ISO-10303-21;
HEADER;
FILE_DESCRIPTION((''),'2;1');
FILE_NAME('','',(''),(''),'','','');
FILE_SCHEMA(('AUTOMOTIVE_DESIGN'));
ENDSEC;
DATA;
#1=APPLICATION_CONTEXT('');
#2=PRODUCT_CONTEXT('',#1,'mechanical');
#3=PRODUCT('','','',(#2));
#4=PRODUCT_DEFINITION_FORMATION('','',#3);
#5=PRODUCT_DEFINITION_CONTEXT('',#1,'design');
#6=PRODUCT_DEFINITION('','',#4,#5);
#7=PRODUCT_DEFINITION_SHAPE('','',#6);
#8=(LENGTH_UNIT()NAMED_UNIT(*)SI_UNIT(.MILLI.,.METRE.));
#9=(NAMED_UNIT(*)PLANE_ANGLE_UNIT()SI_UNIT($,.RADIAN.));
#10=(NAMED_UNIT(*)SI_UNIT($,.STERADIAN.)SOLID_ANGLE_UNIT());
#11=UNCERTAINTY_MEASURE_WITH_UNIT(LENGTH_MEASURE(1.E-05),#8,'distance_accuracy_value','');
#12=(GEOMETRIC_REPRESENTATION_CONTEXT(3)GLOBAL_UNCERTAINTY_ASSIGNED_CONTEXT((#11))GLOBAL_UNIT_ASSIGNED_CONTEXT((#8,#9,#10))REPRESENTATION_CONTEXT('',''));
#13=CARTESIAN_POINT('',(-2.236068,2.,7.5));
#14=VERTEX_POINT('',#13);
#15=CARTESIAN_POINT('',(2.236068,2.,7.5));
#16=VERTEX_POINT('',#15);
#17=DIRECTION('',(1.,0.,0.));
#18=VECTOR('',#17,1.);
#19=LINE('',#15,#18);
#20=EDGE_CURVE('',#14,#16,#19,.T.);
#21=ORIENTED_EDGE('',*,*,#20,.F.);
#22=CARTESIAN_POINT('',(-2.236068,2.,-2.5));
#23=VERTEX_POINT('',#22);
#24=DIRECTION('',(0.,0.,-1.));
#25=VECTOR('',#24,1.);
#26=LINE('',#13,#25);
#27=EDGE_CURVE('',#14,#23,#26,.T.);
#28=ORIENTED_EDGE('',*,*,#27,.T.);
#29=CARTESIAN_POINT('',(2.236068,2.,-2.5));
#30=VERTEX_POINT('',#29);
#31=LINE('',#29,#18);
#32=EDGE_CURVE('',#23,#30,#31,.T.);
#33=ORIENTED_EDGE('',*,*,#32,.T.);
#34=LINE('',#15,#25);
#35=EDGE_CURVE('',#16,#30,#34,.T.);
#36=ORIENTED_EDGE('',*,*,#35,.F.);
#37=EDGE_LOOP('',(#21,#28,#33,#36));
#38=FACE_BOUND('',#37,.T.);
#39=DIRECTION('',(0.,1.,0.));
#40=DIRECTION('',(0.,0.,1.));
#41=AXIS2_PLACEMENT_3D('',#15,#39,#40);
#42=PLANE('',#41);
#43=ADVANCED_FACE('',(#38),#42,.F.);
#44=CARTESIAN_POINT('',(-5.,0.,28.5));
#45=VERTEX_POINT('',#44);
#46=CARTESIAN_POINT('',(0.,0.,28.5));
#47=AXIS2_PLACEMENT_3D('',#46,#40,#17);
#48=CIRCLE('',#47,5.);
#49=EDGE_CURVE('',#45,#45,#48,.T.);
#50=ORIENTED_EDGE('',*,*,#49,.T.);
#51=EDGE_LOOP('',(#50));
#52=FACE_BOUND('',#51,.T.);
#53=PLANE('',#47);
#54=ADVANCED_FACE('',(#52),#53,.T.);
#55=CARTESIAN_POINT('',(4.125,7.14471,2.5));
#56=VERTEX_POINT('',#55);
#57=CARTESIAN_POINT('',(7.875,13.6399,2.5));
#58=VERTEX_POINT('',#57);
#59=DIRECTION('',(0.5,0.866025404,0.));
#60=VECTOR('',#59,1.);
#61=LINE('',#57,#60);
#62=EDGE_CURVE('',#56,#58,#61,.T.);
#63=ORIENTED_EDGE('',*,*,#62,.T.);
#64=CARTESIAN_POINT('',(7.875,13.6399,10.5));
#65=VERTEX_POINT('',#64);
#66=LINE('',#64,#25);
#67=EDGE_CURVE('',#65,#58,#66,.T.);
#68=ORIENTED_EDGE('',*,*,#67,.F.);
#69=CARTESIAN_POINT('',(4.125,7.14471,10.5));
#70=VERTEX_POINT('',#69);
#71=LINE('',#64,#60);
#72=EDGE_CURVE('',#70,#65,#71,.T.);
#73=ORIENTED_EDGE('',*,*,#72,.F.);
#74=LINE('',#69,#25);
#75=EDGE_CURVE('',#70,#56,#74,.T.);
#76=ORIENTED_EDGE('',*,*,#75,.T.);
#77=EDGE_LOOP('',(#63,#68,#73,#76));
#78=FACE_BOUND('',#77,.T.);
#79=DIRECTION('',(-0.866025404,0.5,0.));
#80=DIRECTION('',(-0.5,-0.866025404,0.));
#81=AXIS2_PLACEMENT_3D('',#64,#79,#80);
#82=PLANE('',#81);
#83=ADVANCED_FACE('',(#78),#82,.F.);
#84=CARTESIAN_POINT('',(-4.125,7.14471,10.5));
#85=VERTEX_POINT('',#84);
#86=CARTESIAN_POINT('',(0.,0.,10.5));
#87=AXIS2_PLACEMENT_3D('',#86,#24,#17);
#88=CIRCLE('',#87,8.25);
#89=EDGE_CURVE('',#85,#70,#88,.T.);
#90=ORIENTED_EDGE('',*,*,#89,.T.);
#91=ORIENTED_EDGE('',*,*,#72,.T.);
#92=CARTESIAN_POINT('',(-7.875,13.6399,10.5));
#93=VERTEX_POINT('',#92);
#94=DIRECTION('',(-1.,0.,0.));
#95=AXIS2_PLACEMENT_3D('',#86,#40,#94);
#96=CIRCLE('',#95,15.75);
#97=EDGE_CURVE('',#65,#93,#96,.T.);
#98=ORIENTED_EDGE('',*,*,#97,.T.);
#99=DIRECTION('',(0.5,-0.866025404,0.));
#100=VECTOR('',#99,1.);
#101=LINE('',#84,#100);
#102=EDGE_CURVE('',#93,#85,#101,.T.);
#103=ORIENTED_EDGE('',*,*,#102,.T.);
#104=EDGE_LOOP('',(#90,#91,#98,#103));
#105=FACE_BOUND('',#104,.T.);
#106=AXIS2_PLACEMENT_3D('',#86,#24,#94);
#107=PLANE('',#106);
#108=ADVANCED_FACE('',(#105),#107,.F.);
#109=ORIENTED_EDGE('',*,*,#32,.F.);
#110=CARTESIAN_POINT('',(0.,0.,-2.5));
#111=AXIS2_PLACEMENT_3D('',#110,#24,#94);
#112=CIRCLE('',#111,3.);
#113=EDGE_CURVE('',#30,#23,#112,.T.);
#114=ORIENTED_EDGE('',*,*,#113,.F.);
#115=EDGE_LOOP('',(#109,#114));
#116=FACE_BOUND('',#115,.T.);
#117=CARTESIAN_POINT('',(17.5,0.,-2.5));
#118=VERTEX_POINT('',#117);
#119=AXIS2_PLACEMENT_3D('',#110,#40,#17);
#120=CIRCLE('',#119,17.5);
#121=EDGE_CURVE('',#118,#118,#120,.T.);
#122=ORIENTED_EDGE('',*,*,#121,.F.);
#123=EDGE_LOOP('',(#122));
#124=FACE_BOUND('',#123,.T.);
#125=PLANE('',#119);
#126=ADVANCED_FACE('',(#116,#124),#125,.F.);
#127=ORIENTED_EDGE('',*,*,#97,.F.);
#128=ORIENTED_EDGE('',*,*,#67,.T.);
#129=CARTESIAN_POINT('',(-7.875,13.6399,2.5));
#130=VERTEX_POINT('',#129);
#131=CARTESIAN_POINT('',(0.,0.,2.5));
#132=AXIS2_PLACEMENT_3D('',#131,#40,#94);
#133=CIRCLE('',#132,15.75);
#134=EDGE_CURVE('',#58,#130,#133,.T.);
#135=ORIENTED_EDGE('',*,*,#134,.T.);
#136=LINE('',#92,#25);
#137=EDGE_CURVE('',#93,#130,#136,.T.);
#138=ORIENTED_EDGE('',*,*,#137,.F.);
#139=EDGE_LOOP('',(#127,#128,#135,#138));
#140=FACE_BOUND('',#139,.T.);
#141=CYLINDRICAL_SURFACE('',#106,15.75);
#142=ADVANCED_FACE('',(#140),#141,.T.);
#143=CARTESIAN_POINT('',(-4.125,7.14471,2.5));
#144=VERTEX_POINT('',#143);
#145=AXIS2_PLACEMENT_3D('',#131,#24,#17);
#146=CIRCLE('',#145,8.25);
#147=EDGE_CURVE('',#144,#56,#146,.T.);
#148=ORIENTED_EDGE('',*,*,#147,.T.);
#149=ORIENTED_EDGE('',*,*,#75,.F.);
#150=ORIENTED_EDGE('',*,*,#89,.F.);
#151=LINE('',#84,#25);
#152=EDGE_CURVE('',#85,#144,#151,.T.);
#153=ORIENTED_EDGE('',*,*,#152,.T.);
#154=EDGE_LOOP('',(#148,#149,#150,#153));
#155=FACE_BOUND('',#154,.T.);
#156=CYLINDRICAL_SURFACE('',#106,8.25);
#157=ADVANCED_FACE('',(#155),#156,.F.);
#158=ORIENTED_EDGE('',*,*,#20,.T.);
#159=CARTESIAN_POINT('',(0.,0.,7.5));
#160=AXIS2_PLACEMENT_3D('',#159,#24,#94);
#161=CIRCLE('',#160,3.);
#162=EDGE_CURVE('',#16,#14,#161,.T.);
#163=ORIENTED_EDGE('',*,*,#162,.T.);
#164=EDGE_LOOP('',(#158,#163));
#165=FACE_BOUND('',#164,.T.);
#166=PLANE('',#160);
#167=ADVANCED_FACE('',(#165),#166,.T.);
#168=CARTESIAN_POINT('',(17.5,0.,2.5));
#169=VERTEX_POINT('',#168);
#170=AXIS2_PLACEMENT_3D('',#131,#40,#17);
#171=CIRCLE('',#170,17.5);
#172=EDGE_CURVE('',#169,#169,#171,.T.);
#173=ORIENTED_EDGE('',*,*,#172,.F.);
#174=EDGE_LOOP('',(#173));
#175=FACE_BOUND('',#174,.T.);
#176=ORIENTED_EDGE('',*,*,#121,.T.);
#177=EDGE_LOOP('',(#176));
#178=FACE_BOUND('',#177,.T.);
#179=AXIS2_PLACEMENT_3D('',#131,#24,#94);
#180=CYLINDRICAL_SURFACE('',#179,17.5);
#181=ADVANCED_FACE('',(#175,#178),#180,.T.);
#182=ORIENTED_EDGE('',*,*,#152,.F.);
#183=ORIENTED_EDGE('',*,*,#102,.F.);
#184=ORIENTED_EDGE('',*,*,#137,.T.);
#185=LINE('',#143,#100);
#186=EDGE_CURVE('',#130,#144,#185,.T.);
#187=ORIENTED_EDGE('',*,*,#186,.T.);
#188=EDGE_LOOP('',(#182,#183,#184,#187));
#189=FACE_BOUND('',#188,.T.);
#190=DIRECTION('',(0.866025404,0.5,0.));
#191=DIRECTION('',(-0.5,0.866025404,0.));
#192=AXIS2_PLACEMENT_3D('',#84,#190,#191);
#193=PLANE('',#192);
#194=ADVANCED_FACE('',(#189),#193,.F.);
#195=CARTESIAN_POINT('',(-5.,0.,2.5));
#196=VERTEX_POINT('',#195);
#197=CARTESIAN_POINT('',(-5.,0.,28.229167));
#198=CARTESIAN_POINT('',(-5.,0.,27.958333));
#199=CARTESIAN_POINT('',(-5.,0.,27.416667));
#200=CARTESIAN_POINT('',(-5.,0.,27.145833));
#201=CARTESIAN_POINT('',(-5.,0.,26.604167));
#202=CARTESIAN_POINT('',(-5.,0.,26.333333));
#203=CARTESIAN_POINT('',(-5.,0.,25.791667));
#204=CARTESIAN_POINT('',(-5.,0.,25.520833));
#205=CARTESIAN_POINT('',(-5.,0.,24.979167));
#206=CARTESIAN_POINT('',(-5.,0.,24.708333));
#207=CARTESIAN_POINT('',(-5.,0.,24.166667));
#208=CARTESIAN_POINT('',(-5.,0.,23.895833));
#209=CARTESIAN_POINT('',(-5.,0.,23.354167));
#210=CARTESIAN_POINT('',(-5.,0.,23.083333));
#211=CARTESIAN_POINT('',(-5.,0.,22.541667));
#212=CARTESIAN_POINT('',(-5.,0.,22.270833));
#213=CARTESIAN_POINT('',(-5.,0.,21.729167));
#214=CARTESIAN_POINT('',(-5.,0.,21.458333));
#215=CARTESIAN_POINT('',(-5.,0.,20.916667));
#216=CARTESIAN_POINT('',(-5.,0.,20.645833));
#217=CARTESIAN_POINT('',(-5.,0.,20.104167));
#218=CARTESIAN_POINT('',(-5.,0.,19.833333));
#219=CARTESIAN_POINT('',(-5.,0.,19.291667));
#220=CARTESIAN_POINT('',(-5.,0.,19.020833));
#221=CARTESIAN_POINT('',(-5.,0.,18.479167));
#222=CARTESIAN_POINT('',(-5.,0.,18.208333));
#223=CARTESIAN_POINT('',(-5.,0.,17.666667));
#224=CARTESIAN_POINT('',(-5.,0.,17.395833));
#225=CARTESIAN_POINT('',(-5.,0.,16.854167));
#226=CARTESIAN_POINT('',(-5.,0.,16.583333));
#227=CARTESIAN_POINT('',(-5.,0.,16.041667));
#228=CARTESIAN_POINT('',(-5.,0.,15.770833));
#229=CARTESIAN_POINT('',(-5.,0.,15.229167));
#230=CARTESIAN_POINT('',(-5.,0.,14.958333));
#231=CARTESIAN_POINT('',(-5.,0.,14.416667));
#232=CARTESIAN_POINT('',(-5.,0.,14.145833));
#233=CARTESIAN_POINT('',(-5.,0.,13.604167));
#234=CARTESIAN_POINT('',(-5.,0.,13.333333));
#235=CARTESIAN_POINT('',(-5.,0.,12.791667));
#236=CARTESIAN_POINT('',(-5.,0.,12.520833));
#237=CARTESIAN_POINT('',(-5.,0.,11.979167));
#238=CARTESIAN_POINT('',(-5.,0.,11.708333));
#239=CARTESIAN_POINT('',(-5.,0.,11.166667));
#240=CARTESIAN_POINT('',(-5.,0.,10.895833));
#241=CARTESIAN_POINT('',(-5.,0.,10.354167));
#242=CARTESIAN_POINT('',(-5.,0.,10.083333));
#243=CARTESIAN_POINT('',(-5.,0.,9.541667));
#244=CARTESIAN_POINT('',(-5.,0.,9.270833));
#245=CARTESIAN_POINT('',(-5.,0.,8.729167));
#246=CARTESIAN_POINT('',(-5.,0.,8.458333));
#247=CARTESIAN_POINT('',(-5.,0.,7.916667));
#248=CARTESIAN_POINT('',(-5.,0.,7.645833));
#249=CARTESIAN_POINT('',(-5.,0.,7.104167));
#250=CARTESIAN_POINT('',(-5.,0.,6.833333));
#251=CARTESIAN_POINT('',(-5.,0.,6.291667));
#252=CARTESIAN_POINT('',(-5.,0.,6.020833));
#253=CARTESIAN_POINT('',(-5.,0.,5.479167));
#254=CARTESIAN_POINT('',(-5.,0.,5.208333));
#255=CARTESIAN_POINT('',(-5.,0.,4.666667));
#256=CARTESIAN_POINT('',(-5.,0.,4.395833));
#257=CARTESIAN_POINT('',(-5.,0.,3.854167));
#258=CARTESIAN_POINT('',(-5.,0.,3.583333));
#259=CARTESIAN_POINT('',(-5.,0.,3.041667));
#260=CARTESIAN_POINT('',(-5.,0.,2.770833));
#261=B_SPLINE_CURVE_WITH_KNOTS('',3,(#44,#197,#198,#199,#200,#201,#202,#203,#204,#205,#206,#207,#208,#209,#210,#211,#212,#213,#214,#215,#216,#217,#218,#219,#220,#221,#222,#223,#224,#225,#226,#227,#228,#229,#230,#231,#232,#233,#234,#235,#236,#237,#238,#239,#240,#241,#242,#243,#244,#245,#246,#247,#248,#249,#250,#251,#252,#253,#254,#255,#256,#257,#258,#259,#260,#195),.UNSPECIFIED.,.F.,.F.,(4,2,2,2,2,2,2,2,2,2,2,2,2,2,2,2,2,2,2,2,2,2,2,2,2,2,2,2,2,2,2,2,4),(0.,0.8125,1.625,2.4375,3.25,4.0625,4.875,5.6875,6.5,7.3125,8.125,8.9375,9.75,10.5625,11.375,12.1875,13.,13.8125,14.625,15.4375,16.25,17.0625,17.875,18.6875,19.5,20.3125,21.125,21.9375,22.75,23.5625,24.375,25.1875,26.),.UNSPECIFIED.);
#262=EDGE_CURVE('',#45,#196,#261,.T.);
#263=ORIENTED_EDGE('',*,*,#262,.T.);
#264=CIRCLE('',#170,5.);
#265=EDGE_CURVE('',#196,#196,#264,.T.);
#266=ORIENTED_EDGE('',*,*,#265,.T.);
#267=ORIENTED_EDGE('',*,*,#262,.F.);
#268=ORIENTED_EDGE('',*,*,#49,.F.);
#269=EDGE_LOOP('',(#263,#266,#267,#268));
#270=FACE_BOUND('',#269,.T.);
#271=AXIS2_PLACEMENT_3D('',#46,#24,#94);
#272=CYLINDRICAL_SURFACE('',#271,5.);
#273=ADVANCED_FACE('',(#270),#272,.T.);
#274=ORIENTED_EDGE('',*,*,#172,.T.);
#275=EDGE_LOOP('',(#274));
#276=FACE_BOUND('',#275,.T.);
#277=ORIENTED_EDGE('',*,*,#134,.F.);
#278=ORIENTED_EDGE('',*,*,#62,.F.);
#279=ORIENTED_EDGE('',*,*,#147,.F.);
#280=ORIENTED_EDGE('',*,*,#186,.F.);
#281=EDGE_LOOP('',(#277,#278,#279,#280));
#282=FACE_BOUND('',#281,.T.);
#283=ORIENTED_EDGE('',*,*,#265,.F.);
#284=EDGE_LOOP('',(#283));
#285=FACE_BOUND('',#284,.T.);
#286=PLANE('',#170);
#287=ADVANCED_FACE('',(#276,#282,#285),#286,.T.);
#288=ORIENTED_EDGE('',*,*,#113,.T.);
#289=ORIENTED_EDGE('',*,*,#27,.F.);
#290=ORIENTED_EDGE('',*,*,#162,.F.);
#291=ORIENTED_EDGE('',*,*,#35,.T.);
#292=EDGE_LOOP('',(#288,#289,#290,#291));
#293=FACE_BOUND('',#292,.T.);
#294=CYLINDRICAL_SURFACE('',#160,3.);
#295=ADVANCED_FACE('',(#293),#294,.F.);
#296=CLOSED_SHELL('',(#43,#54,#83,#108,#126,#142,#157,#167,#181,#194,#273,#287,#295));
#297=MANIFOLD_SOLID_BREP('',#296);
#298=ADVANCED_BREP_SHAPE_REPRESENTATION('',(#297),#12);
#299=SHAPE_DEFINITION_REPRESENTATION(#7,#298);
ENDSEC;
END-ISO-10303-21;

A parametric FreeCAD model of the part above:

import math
import FreeCAD as App
import Part
import Sketcher
Q = App.Units.Quantity

doc = App.newDocument("Part")
body = doc.addObject("PartDesign::Body", "Body")

sketch1 = body.newObject("Sketcher::SketchObject", "Sketch")
sketch1.AttachmentSupport = (doc.getObject("XY_Plane"), [""])
sketch1.MapMode = "FlatFace"
sketch1.addGeometry(Part.Circle(App.Vector(0, 0, 0), App.Vector(0, 0, 1), 18), False)
sketch1.addConstraint(Sketcher.Constraint("Coincident", 0, 3, -1, 1))
sketch1.addConstraint(Sketcher.Constraint("Diameter", 0, Q("35 mm")))
pad1 = body.newObject("PartDesign::Pad", "Pad")
pad1.Profile = sketch1
pad1.Length = 5
pad1.Midplane = True

sketch2 = body.newObject("Sketcher::SketchObject", "Sketch001")
sketch2.AttachmentSupport = (doc.getObject("XY_Plane"), [""])
sketch2.MapMode = "FlatFace"
sketch2.AttachmentOffset = App.Placement(App.Vector(0, 0, 2.5), App.Rotation())
sketch2.addGeometry(Part.LineSegment(App.Vector(4, 7, 0), App.Vector(8, 14, 0)), False)
sketch2.addGeometry(Part.ArcOfCircle(Part.Circle(App.Vector(0, 0, 0), App.Vector(0, 0, 1), 16), math.radians(60), math.radians(120)), False)
sketch2.addGeometry(Part.LineSegment(App.Vector(-8, 14, 0), App.Vector(-4, 7, 0)), False)
sketch2.addGeometry(Part.ArcOfCircle(Part.Circle(App.Vector(0, 0, 0), App.Vector(0, 0, 1), 8), math.radians(60), math.radians(120)), False)
sketch2.addConstraint(Sketcher.Constraint("Coincident", 0, 2, 1, 1))
sketch2.addConstraint(Sketcher.Constraint("Coincident", 1, 2, 2, 1))
sketch2.addConstraint(Sketcher.Constraint("Coincident", 2, 2, 3, 2))
sketch2.addConstraint(Sketcher.Constraint("Coincident", 3, 1, 0, 1))
sketch2.addConstraint(Sketcher.Constraint("Coincident", 1, 3, -1, 1))
sketch2.addConstraint(Sketcher.Constraint("Coincident", 3, 3, -1, 1))
sketch2.addConstraint(Sketcher.Constraint("Horizontal", 0, 2, 1, 2))
sketch2.addConstraint(Sketcher.Constraint("Horizontal", 2, 2, 3, 1))
sketch2.addConstraint(Sketcher.Constraint("Angle", 0, Q("60 deg")))
sketch2.addConstraint(Sketcher.Constraint("Radius", 1, Q("15.75 mm")))
sketch2.addConstraint(Sketcher.Constraint("Radius", 3, Q("8.25 mm")))
sketch2.addConstraint(Sketcher.Constraint("DistanceX", 2, 2, 0, 2, Q("12 mm")))
pad2 = body.newObject("PartDesign::Pad", "Pad001")
pad2.Profile = sketch2
pad2.Length = 8

sketch3 = body.newObject("Sketcher::SketchObject", "Sketch002")
sketch3.AttachmentSupport = (doc.getObject("XY_Plane"), [""])
sketch3.MapMode = "FlatFace"
sketch3.AttachmentOffset = App.Placement(App.Vector(0, 0, 2.5), App.Rotation())
sketch3.addGeometry(Part.Circle(App.Vector(0, 0, 0), App.Vector(0, 0, 1), 5), False)
sketch3.addConstraint(Sketcher.Constraint("Coincident", 0, 3, -1, 1))
sketch3.addConstraint(Sketcher.Constraint("Diameter", 0, Q("10 mm")))
pad3 = body.newObject("PartDesign::Pad", "Pad002")
pad3.Profile = sketch3
pad3.Length = 26

sketch4 = body.newObject("Sketcher::SketchObject", "Sketch003")
sketch4.AttachmentSupport = (doc.getObject("XY_Plane"), [""])
sketch4.MapMode = "FlatFace"
sketch4.AttachmentOffset = App.Placement(App.Vector(0, 0, -2.5), App.Rotation())
sketch4.addGeometry(Part.LineSegment(App.Vector(-2.2, 2, 0), App.Vector(2.2, 2, 0)), False)
sketch4.addGeometry(Part.ArcOfCircle(Part.Circle(App.Vector(0, 0, 0), App.Vector(0, 0, 1), 3), math.radians(138), math.radians(402)), False)
sketch4.addConstraint(Sketcher.Constraint("Coincident", 0, 1, 1, 1))
sketch4.addConstraint(Sketcher.Constraint("Coincident", 1, 2, 0, 2))
sketch4.addConstraint(Sketcher.Constraint("Horizontal", 0))
sketch4.addConstraint(Sketcher.Constraint("Coincident", 1, 3, -1, 1))
sketch4.addConstraint(Sketcher.Constraint("Radius", 1, Q("3 mm")))
sketch4.addConstraint(Sketcher.Constraint("DistanceY", -1, 1, 0, 1, Q("2 mm")))
pocket1 = body.newObject("PartDesign::Pocket", "Pocket")
pocket1.Profile = sketch4
pocket1.Length = 10
pocket1.Reversed = True

doc.recompute()
